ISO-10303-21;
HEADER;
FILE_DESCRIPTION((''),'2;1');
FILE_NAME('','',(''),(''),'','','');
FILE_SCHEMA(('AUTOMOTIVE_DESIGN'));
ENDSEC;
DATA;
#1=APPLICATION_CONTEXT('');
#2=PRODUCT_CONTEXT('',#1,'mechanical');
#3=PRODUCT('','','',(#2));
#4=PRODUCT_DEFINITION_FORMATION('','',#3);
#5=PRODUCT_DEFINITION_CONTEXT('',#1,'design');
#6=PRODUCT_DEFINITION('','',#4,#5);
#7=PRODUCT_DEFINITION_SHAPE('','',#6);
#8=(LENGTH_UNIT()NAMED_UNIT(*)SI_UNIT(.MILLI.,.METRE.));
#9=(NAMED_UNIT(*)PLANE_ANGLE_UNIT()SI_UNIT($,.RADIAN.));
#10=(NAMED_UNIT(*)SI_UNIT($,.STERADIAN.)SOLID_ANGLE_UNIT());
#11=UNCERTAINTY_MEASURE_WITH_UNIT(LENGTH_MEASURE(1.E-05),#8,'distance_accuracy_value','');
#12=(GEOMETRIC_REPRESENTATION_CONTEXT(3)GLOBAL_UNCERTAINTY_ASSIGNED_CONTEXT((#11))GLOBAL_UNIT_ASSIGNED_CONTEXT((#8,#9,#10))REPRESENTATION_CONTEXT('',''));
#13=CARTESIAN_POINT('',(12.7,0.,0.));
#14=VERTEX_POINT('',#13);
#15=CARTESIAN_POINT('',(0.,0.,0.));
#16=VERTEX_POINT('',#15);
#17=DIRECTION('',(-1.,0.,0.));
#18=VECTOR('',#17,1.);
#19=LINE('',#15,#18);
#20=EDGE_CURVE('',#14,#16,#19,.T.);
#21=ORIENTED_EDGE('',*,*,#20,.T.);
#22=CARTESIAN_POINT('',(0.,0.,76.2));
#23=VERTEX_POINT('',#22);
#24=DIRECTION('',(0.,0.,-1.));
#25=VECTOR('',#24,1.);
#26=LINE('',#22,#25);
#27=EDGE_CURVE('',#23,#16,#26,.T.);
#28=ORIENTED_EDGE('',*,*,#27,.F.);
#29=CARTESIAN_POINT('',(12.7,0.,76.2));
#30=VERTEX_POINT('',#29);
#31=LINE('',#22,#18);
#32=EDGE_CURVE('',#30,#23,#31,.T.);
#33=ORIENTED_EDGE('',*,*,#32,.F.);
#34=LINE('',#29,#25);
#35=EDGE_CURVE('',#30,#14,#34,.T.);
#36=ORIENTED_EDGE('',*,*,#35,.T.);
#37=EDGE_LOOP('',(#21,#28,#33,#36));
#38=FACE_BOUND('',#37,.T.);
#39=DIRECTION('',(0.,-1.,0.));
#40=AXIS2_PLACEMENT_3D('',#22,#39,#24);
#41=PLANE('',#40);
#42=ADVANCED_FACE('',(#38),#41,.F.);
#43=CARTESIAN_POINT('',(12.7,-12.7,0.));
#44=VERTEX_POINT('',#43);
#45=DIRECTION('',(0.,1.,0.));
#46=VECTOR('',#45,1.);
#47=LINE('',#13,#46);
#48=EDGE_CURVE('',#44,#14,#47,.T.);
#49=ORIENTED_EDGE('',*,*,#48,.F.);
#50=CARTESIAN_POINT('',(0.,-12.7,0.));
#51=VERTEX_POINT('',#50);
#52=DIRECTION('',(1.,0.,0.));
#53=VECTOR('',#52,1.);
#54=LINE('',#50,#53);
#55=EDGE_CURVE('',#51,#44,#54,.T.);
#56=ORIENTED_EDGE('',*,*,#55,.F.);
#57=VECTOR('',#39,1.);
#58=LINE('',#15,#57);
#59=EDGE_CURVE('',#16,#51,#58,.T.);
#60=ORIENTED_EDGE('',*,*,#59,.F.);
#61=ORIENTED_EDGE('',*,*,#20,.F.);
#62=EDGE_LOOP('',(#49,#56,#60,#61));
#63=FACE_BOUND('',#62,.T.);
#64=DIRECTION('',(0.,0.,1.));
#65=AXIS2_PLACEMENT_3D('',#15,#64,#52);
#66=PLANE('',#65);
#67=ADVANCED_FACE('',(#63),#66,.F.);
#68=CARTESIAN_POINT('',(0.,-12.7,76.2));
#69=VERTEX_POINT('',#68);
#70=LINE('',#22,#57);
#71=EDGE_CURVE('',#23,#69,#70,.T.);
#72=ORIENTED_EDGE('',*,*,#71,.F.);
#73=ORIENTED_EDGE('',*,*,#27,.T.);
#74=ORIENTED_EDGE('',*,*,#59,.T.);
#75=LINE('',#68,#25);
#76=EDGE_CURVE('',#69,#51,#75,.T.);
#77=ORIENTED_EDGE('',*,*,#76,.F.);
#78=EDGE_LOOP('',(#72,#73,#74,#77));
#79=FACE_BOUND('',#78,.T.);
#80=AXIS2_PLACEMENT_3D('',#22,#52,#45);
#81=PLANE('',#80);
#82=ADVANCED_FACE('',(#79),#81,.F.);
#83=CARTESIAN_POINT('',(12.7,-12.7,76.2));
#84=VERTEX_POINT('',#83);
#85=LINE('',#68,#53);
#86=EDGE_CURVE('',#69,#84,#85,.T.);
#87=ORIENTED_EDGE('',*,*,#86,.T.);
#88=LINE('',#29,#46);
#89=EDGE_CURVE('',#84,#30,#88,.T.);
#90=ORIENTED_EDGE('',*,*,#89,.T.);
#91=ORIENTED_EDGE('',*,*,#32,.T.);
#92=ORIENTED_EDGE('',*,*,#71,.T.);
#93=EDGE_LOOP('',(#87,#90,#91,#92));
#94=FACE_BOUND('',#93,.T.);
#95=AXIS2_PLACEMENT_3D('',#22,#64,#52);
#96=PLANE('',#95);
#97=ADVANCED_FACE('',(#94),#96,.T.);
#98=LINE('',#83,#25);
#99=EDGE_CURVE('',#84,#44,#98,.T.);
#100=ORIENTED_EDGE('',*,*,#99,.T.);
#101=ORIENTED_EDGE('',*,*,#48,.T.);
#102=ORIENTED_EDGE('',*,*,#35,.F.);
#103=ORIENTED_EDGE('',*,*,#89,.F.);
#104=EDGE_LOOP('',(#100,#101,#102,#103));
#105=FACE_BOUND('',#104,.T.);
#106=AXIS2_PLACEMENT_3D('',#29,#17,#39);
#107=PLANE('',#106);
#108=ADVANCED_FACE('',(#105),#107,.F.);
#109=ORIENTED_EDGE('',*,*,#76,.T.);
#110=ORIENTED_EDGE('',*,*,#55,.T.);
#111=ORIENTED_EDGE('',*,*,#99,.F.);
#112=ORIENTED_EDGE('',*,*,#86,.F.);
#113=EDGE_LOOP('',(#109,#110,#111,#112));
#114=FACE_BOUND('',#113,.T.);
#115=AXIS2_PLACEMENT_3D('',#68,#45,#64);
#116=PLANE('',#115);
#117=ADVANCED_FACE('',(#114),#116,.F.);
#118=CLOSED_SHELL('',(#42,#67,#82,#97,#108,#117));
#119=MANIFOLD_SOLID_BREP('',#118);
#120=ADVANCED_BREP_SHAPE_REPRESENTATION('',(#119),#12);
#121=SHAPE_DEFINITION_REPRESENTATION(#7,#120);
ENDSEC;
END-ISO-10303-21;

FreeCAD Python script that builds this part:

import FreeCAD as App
import Part
import Sketcher
Q = App.Units.Quantity


def add_polygon(sketch, points):
    """Adds a closed chain of lines whose ends are joined by coincident constraints."""
    first, n = sketch.GeometryCount, len(points)
    for a, b in zip(points, points[1:] + points[:1]):
        sketch.addGeometry(Part.LineSegment(App.Vector(*a, 0), App.Vector(*b, 0)), False)
    for i in range(n):
        sketch.addConstraint(Sketcher.Constraint("Coincident", first + i, 2, first + (i + 1) % n, 1))

doc = App.newDocument("Part")
params = doc.addObject("Spreadsheet::Sheet", "Params")
for row, (alias, value) in enumerate([
    ("sketch1_width", "0.5 in"),
    ("pad1_length", "3 in"),
], start=1):
    params.set(f"A{row}", alias)
    params.set(f"B{row}", "=" + value)
    params.setAlias(f"B{row}", alias)

body = doc.addObject("PartDesign::Body", "Body")

# Sketch on XY plane
sketch1 = body.newObject("Sketcher::SketchObject", "Sketch")
sketch1.AttachmentSupport = (doc.getObject("XY_Plane"), [""])
sketch1.MapMode = "FlatFace"
add_polygon(sketch1, [(0, 0), (0, -13), (13, -13), (13, 0)])  # lines 0-3
sketch1.addConstraint([
    Sketcher.Constraint("Vertical", 0),
    Sketcher.Constraint("Horizontal", 1),
    Sketcher.Constraint("Vertical", 2),
    Sketcher.Constraint("Horizontal", 3),
    Sketcher.Constraint("Coincident", 3, 2, -1, 1),
    Sketcher.Constraint("Equal", 3, 0),
    Sketcher.Constraint("DistanceX", 1, 1, 1, 2, Q("0.5 in")),
])
sketch1.setExpression("Constraints[10]", "Params.sketch1_width")
pad1 = body.newObject("PartDesign::Pad", "Pad")
pad1.Profile = sketch1
pad1.setExpression("Length", "Params.pad1_length")

doc.recompute()
